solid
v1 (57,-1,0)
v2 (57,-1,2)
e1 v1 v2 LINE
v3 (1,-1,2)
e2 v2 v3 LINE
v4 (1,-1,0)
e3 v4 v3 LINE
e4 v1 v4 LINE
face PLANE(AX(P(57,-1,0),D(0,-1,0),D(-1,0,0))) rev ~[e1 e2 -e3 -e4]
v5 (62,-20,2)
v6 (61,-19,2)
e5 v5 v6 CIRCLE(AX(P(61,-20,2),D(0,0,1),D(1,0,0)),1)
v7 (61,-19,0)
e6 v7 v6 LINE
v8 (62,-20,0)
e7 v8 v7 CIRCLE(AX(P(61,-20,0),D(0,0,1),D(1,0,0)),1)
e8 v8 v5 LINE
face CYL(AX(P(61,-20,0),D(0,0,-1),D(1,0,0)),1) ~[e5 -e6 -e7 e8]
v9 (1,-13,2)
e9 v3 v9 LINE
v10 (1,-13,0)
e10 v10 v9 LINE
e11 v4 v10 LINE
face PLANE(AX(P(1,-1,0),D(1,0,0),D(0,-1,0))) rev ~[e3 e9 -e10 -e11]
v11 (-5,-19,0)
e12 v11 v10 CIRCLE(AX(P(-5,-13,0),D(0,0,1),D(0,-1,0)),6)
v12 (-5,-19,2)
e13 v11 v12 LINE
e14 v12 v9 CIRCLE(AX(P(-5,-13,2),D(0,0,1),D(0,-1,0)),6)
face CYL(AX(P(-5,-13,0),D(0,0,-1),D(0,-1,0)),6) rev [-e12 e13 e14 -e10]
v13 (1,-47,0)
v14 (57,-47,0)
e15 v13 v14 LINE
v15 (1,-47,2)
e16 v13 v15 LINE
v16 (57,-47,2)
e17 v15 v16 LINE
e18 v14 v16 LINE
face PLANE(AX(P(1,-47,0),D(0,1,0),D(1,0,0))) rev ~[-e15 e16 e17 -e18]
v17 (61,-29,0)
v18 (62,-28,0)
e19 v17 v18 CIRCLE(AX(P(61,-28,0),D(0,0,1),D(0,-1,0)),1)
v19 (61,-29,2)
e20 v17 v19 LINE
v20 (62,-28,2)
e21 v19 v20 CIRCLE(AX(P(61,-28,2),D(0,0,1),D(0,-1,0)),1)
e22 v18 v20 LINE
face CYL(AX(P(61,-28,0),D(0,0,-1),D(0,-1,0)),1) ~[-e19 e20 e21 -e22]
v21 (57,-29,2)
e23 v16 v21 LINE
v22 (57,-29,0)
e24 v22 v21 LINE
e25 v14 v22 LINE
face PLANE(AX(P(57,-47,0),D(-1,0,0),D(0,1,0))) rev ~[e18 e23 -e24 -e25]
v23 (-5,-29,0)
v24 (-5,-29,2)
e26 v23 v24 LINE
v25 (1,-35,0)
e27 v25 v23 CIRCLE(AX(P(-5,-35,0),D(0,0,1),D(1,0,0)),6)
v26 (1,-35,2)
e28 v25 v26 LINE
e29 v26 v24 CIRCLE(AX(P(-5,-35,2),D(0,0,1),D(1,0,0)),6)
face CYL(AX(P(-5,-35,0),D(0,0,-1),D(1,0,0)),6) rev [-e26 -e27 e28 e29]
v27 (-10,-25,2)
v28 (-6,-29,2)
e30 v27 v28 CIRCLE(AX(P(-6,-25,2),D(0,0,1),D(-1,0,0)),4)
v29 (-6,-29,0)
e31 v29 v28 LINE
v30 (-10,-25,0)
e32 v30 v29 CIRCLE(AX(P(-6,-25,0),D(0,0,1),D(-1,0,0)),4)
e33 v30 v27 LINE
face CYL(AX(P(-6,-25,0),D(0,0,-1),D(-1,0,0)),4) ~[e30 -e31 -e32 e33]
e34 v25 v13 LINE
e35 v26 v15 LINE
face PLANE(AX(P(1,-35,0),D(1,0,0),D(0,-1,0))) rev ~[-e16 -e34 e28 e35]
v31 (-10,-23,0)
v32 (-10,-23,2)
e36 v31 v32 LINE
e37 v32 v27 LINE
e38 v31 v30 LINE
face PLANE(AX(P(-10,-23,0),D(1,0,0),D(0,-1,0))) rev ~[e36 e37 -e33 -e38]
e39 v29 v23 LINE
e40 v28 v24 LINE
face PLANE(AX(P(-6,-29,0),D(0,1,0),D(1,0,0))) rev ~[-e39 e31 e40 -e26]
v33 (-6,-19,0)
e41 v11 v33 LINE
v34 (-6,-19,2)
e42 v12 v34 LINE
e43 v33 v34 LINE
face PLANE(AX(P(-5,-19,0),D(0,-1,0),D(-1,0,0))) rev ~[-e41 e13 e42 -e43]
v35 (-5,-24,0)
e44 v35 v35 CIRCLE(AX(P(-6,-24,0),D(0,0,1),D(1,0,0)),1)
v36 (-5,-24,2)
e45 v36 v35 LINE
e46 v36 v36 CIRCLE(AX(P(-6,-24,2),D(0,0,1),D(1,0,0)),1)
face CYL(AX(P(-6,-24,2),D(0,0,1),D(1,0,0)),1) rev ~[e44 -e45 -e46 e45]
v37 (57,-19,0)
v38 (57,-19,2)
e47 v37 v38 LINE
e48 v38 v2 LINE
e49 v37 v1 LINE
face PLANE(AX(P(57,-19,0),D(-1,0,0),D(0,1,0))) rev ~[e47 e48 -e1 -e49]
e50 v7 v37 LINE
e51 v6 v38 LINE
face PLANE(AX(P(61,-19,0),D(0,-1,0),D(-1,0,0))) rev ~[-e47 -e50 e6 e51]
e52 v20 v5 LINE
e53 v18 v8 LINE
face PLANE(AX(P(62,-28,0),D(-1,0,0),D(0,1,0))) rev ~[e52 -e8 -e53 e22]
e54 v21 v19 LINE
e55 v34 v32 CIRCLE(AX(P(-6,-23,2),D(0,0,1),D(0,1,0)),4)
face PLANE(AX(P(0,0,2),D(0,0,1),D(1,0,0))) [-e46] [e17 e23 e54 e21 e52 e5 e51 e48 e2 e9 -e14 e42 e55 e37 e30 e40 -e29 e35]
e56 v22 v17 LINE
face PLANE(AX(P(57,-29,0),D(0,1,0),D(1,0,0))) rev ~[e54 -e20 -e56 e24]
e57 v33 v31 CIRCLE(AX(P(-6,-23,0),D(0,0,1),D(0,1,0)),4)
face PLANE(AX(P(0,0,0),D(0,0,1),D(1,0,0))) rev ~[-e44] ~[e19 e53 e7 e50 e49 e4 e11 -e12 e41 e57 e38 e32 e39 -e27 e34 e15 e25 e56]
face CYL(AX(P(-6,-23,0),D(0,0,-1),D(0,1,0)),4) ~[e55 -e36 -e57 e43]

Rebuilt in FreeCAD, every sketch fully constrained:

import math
import FreeCAD as App
import Part
import Sketcher
from FreeCAD import Vector

doc = App.newDocument("Part")
params = doc.addObject("Spreadsheet::Sheet", "Params")
for row, (alias, value) in enumerate([
    ("sketch1_radius", "6 mm"),
    ("sketch1_radius2", "4 mm"),
    ("sketch1_radius3", "1 mm"),
    ("sketch1_width", "56 mm"),
    ("sketch1_width2", "1 mm"),
    ("pad1_length", "2 mm"),
    ("sketch2_diameter", "2 mm"),
    ("pocket1_length", "5 mm"),
], start=1):
    params.set(f"A{row}", alias)
    params.set(f"B{row}", "=" + value)
    params.setAlias(f"B{row}", alias)

body = doc.addObject("PartDesign::Body", "Body")

# Sketch on XY plane
sketch1 = body.newObject("Sketcher::SketchObject", "Sketch")
sketch1.AttachmentSupport = (doc.getObject("XY_Plane"), [""])
sketch1.MapMode = "FlatFace"
sketch1.addGeometry([
    Part.LineSegment(Vector(57, -19, 0), Vector(57, -1, 0)),  # 0
    Part.LineSegment(Vector(57, -1, 0), Vector(1, -1, 0)),  # 1
    Part.LineSegment(Vector(1, -1, 0), Vector(1, -13, 0)),  # 2
    Part.ArcOfCircle(Part.Circle(Vector(-5, -13, 0), Vector(0, 0, 1), 6), math.radians(-90), math.radians(0)),  # 3
    Part.LineSegment(Vector(-5, -19, 0), Vector(-6, -19, 0)),  # 4
    Part.ArcOfCircle(Part.Circle(Vector(-6, -23, 0), Vector(0, 0, 1), 4), math.radians(90), math.radians(180)),  # 5
    Part.LineSegment(Vector(-10, -23, 0), Vector(-10, -25, 0)),  # 6
    Part.ArcOfCircle(Part.Circle(Vector(-6, -25, 0), Vector(0, 0, 1), 4), math.radians(180), math.radians(270)),  # 7
    Part.LineSegment(Vector(-6, -29, 0), Vector(-5, -29, 0)),  # 8
    Part.ArcOfCircle(Part.Circle(Vector(-5, -35, 0), Vector(0, 0, 1), 6), math.radians(0), math.radians(90)),  # 9
    Part.LineSegment(Vector(1, -35, 0), Vector(1, -47, 0)),  # 10
    Part.LineSegment(Vector(1, -47, 0), Vector(57, -47, 0)),  # 11
    Part.LineSegment(Vector(57, -47, 0), Vector(57, -29, 0)),  # 12
    Part.LineSegment(Vector(57, -29, 0), Vector(61, -29, 0)),  # 13
    Part.ArcOfCircle(Part.Circle(Vector(61, -28, 0), Vector(0, 0, 1), 1), math.radians(-90), math.radians(0)),  # 14
    Part.LineSegment(Vector(62, -28, 0), Vector(62, -20, 0)),  # 15
    Part.ArcOfCircle(Part.Circle(Vector(61, -20, 0), Vector(0, 0, 1), 1), math.radians(0), math.radians(90)),  # 16
    Part.LineSegment(Vector(61, -19, 0), Vector(57, -19, 0)),  # 17
], False)
sketch1.addConstraint([
    Sketcher.Constraint("Coincident", 0, 2, 1, 1),
    Sketcher.Constraint("Coincident", 1, 2, 2, 1),
    Sketcher.Constraint("Tangent", 2, 2, 3, 2),
    Sketcher.Constraint("Tangent", 3, 1, 4, 1),
    Sketcher.Constraint("Tangent", 4, 2, 5, 1),
    Sketcher.Constraint("Tangent", 5, 2, 6, 1),
    Sketcher.Constraint("Tangent", 6, 2, 7, 1),
    Sketcher.Constraint("Tangent", 7, 2, 8, 1),
    Sketcher.Constraint("Tangent", 8, 2, 9, 2),
    Sketcher.Constraint("Tangent", 9, 1, 10, 1),
    Sketcher.Constraint("Coincident", 10, 2, 11, 1),
    Sketcher.Constraint("Coincident", 11, 2, 12, 1),
    Sketcher.Constraint("Coincident", 12, 2, 13, 1),
    Sketcher.Constraint("Tangent", 13, 2, 14, 1),
    Sketcher.Constraint("Tangent", 14, 2, 15, 1),
    Sketcher.Constraint("Tangent", 15, 2, 16, 1),
    Sketcher.Constraint("Tangent", 16, 2, 17, 1),
    Sketcher.Constraint("Coincident", 17, 2, 0, 1),
    Sketcher.Constraint("Vertical", 0),
    Sketcher.Constraint("Horizontal", 1),
    Sketcher.Constraint("Vertical", 2),
    Sketcher.Constraint("Horizontal", 4),
    Sketcher.Constraint("Vertical", 6),
    Sketcher.Constraint("Horizontal", 8),
    Sketcher.Constraint("Vertical", 10),
    Sketcher.Constraint("Horizontal", 11),
    Sketcher.Constraint("Vertical", 12),
    Sketcher.Constraint("Horizontal", 13),
    Sketcher.Constraint("Vertical", 15),
    Sketcher.Constraint("Horizontal", 17),
    Sketcher.Constraint("Equal", 5, 7),
    Sketcher.Constraint("Equal", 3, 9),
    Sketcher.Constraint("Equal", 14, 16),
    Sketcher.Constraint("Horizontal", 8, 2, 12, 2),
    Sketcher.Constraint("Horizontal", 4, 2, 16, 2),
    Sketcher.Constraint("Vertical", 3, 3, 9, 3),
    Sketcher.Constraint("Vertical", 0, 2, 11, 2),
    Sketcher.Constraint("Equal", 2, 10),
    Sketcher.Constraint("Radius", 3, 6.0),
    Sketcher.Constraint("Radius", 5, 4.0),
    Sketcher.Constraint("Radius", 14, 1.0),
    Sketcher.Constraint("DistanceX", 1, 2, 1, 1, 56.0),
    Sketcher.Constraint("DistanceX", 4, 2, 4, 1, 1.0),
    Sketcher.Constraint("DistanceX", 13, 1, 13, 2, 4.0),
    Sketcher.Constraint("DistanceY", 0, 1, 0, 2, 18.0),
    Sketcher.Constraint("DistanceY", 6, 2, 6, 1, 2.0),
    Sketcher.Constraint("DistanceX", 3, 3, -1, 1, 5.0),
    Sketcher.Constraint("DistanceY", 3, 3, -1, 1, 13.0),
])
sketch1.setExpression("Constraints[38]", "Params.sketch1_radius")
sketch1.setExpression("Constraints[39]", "Params.sketch1_radius2")
sketch1.setExpression("Constraints[40]", "Params.sketch1_radius3")
sketch1.setExpression("Constraints[41]", "Params.sketch1_width")
sketch1.setExpression("Constraints[42]", "Params.sketch1_width2")
pad1 = body.newObject("PartDesign::Pad", "Pad")
pad1.Profile = sketch1
pad1.setExpression("Length", "Params.pad1_length")

# Sketch on XY plane
sketch2 = body.newObject("Sketcher::SketchObject", "Sketch001")
sketch2.AttachmentSupport = (doc.getObject("XY_Plane"), [""])
sketch2.MapMode = "FlatFace"
sketch2.AttachmentOffset = App.Placement(Vector(0, 0, 2), App.Rotation())
sketch2.addGeometry(Part.Circle(Vector(-6, -24, 0), Vector(0, 0, 1), 1), False)
sketch2.addConstraint([
    Sketcher.Constraint("Diameter", 0, 2.0),
    Sketcher.Constraint("DistanceX", 0, 3, -1, 1, 6.0),
    Sketcher.Constraint("DistanceY", 0, 3, -1, 1, 24.0),
])
sketch2.setExpression("Constraints[0]", "Params.sketch2_diameter")
pocket1 = body.newObject("PartDesign::Pocket", "Pocket")
pocket1.Profile = sketch2
pocket1.setExpression("Length", "Params.pocket1_length")

doc.recompute()
